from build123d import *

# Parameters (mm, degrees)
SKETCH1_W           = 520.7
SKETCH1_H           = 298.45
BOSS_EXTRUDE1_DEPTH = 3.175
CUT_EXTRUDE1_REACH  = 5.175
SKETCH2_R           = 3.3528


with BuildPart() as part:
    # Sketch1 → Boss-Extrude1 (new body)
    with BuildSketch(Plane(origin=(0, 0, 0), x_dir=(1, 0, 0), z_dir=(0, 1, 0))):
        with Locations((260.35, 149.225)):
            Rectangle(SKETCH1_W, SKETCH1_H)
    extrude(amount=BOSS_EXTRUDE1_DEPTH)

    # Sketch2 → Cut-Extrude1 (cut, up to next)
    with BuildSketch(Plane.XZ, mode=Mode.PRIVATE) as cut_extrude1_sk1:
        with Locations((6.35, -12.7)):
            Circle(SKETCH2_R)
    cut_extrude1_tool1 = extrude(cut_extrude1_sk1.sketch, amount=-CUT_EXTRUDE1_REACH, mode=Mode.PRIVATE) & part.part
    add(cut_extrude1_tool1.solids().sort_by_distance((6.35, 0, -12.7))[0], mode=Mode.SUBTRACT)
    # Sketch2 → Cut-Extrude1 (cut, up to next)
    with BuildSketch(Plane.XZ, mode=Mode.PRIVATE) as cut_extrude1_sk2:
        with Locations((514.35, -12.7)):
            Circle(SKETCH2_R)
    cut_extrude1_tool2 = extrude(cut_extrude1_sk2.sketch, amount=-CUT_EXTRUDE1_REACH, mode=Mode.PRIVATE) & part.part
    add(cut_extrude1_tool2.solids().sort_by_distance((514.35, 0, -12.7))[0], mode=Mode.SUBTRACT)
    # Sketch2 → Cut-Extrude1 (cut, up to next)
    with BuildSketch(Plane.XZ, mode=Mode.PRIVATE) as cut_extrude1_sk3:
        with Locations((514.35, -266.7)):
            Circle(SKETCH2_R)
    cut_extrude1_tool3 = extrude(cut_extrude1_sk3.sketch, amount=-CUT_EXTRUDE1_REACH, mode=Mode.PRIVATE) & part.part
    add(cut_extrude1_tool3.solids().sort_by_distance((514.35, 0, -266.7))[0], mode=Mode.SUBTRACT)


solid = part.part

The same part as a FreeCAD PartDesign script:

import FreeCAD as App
import Part
import Sketcher
from FreeCAD import Vector
Q = App.Units.Quantity


def add_polygon(sketch, points):
    """Adds a closed chain of lines whose ends are joined by coincident constraints."""
    first, n = sketch.GeometryCount, len(points)
    for a, b in zip(points, points[1:] + points[:1]):
        sketch.addGeometry(Part.LineSegment(App.Vector(*a, 0), App.Vector(*b, 0)), False)
    for i in range(n):
        sketch.addConstraint(Sketcher.Constraint("Coincident", first + i, 2, first + (i + 1) % n, 1))

doc = App.newDocument("Part")
params = doc.addObject("Spreadsheet::Sheet", "Params")
for row, (alias, value) in enumerate([
    ("sketch1_width", "20.5 in"),
    ("sketch1_height", "11.75 in"),
    ("pad1_length", "0.125 in"),
    ("sketch2_diameter", "0.264 in"),
    ("sketch3_diameter", "0.264 in"),
    ("sketch4_diameter", "0.264 in"),
], start=1):
    params.set(f"A{row}", alias)
    params.set(f"B{row}", "=" + value)
    params.setAlias(f"B{row}", alias)

body = doc.addObject("PartDesign::Body", "Body")

sketch1 = doc.addObject("Sketcher::SketchObject", "Sketch")
body.addObject(sketch1)
sketch1.AttachmentSupport = (doc.XZ_Plane, [""])
sketch1.MapMode = "FlatFace"
add_polygon(sketch1, [(0, -298.45), (0, 0), (520.7, 0), (520.7, -298.45)])
sketch1.addConstraint([
    Sketcher.Constraint("Vertical", 0),
    Sketcher.Constraint("Horizontal", 1),
    Sketcher.Constraint("Vertical", 2),
    Sketcher.Constraint("Horizontal", 3),
    Sketcher.Constraint("Coincident", 0, 2, -1, 1),
    Sketcher.Constraint("DistanceX", 1, 1, 1, 2, Q("20.5 in")),
    Sketcher.Constraint("DistanceY", 0, 1, 0, 2, Q("11.75 in")),
])
sketch1.setExpression("Constraints[9]", "Params.sketch1_width")
sketch1.setExpression("Constraints[10]", "Params.sketch1_height")
pad1 = doc.addObject("PartDesign::Pad", "Pad")
body.addObject(pad1)
pad1.Profile = sketch1
pad1.setExpression("Length", "Params.pad1_length")
pad1.Reversed = True

sketch2 = doc.addObject("Sketcher::SketchObject", "Sketch001")
body.addObject(sketch2)
sketch2.AttachmentSupport = (doc.XZ_Plane, [""])
sketch2.MapMode = "FlatFace"
sketch2.addGeometry(Part.Circle(Vector(6.35, -12.7, 0), Vector(0, 0, 1), 3.3528), False)
sketch2.addConstraint([
    Sketcher.Constraint("Diameter", 0, Q("0.264 in")),
    Sketcher.Constraint("DistanceY", 0, 3, -1, 1, Q("0.5 in")),
    Sketcher.Constraint("DistanceX", -1, 1, 0, 3, Q("0.25 in")),
])
sketch2.setExpression("Constraints[0]", "Params.sketch2_diameter")
pocket1 = doc.addObject("PartDesign::Pocket", "Pocket")
body.addObject(pocket1)
pocket1.Profile = sketch2
pocket1.Type = "UpToFirst"

sketch3 = doc.addObject("Sketcher::SketchObject", "Sketch002")
body.addObject(sketch3)
sketch3.AttachmentSupport = (doc.XZ_Plane, [""])
sketch3.MapMode = "FlatFace"
sketch3.addGeometry(Part.Circle(Vector(514.35, -12.7, 0), Vector(0, 0, 1), 3.3528), False)
sketch3.addConstraint([
    Sketcher.Constraint("Diameter", 0, Q("0.264 in")),
    Sketcher.Constraint("DistanceY", 0, 3, -1, 1, Q("0.5 in")),
    Sketcher.Constraint("DistanceX", -1, 1, 0, 3, Q("20.25 in")),
])
sketch3.setExpression("Constraints[0]", "Params.sketch3_diameter")
pocket2 = doc.addObject("PartDesign::Pocket", "Pocket001")
body.addObject(pocket2)
pocket2.Profile = sketch3
pocket2.Type = "UpToFirst"

sketch4 = doc.addObject("Sketcher::SketchObject", "Sketch003")
body.addObject(sketch4)
sketch4.AttachmentSupport = (doc.XZ_Plane, [""])
sketch4.MapMode = "FlatFace"
sketch4.addGeometry(Part.Circle(Vector(514.35, -266.7, 0), Vector(0, 0, 1), 3.3528), False)
sketch4.addConstraint([
    Sketcher.Constraint("Diameter", 0, Q("0.264 in")),
    Sketcher.Constraint("DistanceY", 0, 3, -1, 1, Q("10.5 in")),
    Sketcher.Constraint("DistanceX", -1, 1, 0, 3, Q("20.25 in")),
])
sketch4.setExpression("Constraints[0]", "Params.sketch4_diameter")
pocket3 = doc.addObject("PartDesign::Pocket", "Pocket002")
body.addObject(pocket3)
pocket3.Profile = sketch4
pocket3.Type = "UpToFirst"

doc.recompute()
